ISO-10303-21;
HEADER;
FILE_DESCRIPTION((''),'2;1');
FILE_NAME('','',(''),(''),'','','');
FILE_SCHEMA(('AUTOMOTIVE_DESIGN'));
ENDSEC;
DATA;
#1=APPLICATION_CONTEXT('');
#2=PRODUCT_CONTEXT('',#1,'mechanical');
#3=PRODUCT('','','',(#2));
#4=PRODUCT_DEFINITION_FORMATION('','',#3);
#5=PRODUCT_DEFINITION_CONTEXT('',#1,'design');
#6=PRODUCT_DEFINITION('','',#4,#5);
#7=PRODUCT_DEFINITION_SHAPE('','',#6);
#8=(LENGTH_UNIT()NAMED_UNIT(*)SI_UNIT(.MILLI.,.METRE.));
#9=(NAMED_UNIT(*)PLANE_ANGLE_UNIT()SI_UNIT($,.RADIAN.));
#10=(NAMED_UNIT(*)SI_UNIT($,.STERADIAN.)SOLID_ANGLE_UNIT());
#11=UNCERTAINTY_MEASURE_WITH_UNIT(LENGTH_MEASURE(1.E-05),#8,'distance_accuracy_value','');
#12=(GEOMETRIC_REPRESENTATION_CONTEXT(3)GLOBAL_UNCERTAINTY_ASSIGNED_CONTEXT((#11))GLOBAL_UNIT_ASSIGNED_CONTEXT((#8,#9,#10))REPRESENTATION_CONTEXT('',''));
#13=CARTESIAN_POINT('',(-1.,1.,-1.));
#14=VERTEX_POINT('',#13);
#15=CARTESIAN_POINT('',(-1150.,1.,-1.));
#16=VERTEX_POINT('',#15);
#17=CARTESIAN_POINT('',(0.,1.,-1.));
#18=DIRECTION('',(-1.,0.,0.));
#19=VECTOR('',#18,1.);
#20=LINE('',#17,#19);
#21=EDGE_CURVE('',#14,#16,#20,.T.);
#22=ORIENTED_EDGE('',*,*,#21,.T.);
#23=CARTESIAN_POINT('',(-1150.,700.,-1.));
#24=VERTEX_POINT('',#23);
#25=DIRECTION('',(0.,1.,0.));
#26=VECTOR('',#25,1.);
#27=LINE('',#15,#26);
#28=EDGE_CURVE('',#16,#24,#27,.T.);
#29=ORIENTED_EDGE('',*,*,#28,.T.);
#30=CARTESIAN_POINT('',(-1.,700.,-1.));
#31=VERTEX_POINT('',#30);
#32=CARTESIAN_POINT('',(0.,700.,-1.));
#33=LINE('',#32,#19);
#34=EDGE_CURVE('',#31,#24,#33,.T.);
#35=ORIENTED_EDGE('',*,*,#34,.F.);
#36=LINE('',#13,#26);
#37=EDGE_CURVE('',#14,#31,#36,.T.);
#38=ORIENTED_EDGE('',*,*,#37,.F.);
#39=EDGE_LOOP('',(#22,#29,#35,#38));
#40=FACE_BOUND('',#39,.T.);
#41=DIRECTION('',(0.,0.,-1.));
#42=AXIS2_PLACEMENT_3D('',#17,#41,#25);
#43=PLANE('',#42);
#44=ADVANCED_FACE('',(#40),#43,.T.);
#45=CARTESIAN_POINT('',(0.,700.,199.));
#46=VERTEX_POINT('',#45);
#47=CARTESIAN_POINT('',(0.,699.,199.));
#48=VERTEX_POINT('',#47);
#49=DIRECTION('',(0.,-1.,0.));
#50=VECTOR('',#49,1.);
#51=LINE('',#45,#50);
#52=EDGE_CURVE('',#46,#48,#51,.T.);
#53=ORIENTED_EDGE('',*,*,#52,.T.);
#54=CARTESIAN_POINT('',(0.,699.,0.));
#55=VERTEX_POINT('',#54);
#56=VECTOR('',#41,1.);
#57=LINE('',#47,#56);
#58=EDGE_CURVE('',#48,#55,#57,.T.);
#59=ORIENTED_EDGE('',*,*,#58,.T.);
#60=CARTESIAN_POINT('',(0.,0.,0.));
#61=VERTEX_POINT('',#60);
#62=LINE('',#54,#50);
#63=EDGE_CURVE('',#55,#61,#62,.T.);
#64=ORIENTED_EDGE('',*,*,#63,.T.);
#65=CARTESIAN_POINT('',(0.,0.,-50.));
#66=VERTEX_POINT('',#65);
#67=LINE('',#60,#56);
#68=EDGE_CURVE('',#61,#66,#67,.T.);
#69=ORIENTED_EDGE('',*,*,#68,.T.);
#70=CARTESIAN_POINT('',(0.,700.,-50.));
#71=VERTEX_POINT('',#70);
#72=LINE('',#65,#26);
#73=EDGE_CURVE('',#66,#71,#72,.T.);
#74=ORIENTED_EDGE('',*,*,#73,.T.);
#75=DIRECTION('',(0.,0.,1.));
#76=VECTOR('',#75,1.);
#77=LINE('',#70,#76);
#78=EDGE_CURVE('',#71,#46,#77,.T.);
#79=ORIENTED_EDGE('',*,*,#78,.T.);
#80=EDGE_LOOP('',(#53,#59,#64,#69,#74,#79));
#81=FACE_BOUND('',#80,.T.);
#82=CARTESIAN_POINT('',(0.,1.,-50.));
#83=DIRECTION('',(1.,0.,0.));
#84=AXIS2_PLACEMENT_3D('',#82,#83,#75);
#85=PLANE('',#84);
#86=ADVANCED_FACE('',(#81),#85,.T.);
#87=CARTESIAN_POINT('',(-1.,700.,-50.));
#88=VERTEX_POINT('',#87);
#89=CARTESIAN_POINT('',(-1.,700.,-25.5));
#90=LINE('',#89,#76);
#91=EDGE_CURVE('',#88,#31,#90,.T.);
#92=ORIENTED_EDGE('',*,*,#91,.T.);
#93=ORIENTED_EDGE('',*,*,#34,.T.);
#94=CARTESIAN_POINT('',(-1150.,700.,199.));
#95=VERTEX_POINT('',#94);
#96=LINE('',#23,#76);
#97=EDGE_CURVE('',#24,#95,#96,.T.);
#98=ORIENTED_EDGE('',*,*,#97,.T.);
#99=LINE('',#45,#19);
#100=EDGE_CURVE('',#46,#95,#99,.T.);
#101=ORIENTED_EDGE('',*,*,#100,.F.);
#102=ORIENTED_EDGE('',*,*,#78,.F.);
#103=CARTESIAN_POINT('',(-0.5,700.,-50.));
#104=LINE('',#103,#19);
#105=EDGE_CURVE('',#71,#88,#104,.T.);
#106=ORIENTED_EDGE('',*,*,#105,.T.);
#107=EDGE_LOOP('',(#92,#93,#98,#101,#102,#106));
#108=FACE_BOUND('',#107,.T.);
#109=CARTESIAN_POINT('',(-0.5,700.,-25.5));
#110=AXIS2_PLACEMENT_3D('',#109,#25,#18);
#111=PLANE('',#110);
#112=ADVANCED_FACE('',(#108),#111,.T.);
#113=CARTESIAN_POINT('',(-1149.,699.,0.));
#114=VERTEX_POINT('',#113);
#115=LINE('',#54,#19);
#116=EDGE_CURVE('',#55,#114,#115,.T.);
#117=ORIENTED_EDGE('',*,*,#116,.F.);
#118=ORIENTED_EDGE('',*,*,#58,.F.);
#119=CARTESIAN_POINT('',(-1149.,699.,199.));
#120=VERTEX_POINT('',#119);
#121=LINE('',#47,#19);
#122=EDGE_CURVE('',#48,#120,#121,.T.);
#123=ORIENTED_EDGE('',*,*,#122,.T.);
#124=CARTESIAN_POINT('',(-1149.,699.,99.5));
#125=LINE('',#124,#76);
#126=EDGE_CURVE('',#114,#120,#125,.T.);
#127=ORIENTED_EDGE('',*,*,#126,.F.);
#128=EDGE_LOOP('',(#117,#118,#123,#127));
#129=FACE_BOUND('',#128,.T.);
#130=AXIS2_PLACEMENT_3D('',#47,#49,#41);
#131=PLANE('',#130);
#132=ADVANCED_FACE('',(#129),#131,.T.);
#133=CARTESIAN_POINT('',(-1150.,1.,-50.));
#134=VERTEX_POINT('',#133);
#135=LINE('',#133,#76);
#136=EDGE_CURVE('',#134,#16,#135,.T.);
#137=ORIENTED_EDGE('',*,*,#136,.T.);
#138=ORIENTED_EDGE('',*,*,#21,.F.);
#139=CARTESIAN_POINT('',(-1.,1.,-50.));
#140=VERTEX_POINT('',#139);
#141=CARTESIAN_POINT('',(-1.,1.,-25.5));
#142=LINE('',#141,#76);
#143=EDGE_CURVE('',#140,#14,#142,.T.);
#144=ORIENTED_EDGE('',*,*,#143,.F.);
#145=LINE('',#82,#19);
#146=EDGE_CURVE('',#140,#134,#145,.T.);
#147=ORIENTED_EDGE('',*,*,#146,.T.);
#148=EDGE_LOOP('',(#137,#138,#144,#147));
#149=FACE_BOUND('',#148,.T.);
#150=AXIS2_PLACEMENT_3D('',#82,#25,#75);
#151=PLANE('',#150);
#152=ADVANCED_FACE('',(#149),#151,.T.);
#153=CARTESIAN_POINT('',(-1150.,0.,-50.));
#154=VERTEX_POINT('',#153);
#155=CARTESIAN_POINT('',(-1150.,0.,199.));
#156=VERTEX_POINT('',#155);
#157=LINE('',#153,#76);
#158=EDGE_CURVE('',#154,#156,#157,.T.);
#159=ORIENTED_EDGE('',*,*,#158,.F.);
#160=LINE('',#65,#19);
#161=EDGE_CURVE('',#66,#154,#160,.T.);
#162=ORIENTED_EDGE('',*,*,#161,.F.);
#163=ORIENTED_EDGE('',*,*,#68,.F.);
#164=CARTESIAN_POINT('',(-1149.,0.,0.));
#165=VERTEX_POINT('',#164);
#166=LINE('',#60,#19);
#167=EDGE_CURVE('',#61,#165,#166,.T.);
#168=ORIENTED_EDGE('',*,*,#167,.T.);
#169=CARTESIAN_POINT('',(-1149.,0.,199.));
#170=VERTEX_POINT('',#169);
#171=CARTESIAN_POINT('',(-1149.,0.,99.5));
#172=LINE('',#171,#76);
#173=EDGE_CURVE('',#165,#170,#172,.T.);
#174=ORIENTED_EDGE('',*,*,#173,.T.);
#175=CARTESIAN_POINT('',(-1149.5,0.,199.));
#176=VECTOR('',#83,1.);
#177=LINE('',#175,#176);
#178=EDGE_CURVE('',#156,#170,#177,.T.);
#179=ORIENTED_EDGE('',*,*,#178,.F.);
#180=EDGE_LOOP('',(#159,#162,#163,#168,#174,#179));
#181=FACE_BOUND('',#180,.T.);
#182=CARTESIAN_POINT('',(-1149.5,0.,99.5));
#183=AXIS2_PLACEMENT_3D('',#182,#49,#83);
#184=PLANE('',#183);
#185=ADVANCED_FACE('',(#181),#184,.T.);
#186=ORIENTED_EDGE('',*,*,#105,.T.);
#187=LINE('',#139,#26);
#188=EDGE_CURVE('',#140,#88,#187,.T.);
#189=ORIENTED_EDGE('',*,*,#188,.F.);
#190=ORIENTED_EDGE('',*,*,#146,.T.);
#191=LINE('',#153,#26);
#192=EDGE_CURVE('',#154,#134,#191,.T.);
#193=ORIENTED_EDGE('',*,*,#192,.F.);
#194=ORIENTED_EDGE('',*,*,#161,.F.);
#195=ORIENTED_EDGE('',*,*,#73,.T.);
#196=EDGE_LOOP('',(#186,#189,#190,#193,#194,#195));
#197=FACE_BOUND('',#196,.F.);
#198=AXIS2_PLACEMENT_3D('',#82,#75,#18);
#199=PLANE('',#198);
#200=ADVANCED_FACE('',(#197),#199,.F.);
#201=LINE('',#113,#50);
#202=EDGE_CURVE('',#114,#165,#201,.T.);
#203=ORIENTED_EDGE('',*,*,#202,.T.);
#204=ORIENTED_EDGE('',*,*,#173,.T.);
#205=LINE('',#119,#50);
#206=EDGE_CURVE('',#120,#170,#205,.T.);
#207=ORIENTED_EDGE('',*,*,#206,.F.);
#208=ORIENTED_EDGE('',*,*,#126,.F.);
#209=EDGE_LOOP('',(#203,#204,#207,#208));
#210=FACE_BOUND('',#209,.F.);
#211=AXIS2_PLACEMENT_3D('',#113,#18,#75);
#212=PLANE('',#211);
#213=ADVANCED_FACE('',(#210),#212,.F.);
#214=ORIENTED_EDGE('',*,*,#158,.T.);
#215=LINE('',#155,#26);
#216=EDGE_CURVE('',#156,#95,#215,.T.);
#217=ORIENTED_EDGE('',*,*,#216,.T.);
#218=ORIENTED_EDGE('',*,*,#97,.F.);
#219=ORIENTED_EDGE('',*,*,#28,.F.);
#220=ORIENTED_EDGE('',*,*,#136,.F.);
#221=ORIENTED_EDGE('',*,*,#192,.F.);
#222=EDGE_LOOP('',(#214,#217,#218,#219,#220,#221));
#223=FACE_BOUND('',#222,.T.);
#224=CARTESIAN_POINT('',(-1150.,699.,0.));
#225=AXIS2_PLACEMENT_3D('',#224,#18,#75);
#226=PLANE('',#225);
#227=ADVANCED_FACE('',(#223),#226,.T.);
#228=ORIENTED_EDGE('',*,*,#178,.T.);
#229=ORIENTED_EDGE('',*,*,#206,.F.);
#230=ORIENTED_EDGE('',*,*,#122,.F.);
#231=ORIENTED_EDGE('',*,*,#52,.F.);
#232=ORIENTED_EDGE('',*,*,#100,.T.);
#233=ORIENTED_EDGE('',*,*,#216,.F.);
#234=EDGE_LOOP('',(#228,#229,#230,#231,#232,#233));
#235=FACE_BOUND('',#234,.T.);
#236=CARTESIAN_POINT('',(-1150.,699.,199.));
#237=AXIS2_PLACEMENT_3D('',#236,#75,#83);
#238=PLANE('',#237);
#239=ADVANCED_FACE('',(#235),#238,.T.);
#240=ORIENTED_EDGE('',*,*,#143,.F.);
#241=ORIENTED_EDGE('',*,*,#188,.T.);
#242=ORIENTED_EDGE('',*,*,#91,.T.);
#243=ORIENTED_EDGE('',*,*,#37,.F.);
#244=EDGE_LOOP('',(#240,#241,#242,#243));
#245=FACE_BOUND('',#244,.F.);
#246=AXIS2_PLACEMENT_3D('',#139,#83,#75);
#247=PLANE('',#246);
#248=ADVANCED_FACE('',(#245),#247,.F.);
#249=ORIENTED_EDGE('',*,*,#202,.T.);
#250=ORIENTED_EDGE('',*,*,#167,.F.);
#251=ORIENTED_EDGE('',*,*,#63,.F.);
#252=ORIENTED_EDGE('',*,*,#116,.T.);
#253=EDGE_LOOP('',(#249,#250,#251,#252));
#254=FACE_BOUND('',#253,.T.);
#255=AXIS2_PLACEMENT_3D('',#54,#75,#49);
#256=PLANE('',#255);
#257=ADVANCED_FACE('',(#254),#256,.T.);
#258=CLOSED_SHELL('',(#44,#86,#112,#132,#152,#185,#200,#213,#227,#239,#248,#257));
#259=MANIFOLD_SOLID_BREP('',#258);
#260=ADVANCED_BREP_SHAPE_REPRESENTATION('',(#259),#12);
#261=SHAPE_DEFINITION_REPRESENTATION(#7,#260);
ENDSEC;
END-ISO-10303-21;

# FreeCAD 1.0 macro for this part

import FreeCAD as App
import Part
import Sketcher
Q = App.Units.Quantity

doc = App.newDocument("Part")
body = doc.addObject("PartDesign::Body", "Body")

# Sketch on YZ plane
sketch1 = body.newObject("Sketcher::SketchObject", "Sketch")
sketch1.AttachmentSupport = (doc.getObject("YZ_Plane"), [""])
sketch1.MapMode = "FlatFace"
sketch1.addGeometry(Part.LineSegment(App.Vector(699, 0, 0), App.Vector(0, 0, 0)), False)
sketch1.addGeometry(Part.LineSegment(App.Vector(0, 0, 0), App.Vector(0, -50, 0)), False)
sketch1.addGeometry(Part.LineSegment(App.Vector(0, -50, 0), App.Vector(1, -50, 0)), False)
sketch1.addGeometry(Part.LineSegment(App.Vector(1, -50, 0), App.Vector(1, -1, 0)), False)
sketch1.addGeometry(Part.LineSegment(App.Vector(1, -1, 0), App.Vector(700, -1, 0)), False)
sketch1.addGeometry(Part.LineSegment(App.Vector(700, -1, 0), App.Vector(700, 199, 0)), False)
sketch1.addGeometry(Part.LineSegment(App.Vector(700, 199, 0), App.Vector(699, 199, 0)), False)
sketch1.addGeometry(Part.LineSegment(App.Vector(699, 199, 0), App.Vector(699, 0, 0)), False)
sketch1.addConstraint(Sketcher.Constraint("Coincident", 0, 2, 1, 1))
sketch1.addConstraint(Sketcher.Constraint("Coincident", 1, 2, 2, 1))
sketch1.addConstraint(Sketcher.Constraint("Coincident", 2, 2, 3, 1))
sketch1.addConstraint(Sketcher.Constraint("Coincident", 3, 2, 4, 1))
sketch1.addConstraint(Sketcher.Constraint("Coincident", 4, 2, 5, 1))
sketch1.addConstraint(Sketcher.Constraint("Coincident", 5, 2, 6, 1))
sketch1.addConstraint(Sketcher.Constraint("Coincident", 6, 2, 7, 1))
sketch1.addConstraint(Sketcher.Constraint("Coincident", 7, 2, 0, 1))
sketch1.addConstraint(Sketcher.Constraint("Horizontal", 0))
sketch1.addConstraint(Sketcher.Constraint("Vertical", 1))
sketch1.addConstraint(Sketcher.Constraint("Horizontal", 2))
sketch1.addConstraint(Sketcher.Constraint("Vertical", 3))
sketch1.addConstraint(Sketcher.Constraint("Horizontal", 4))
sketch1.addConstraint(Sketcher.Constraint("Vertical", 5))
sketch1.addConstraint(Sketcher.Constraint("Horizontal", 6))
sketch1.addConstraint(Sketcher.Constraint("Vertical", 7))
sketch1.addConstraint(Sketcher.Constraint("Coincident", 0, 2, -1, 1))
sketch1.addConstraint(Sketcher.Constraint("Equal", 0, 4))
sketch1.addConstraint(Sketcher.Constraint("DistanceX", 0, 2, 0, 1, Q("699 mm")))
sketch1.addConstraint(Sketcher.Constraint("DistanceX", 2, 1, 2, 2, Q("1 mm")))
sketch1.addConstraint(Sketcher.Constraint("DistanceY", 1, 2, 1, 1, Q("50 mm")))
sketch1.addConstraint(Sketcher.Constraint("DistanceY", 3, 1, 3, 2, Q("49 mm")))
sketch1.addConstraint(Sketcher.Constraint("DistanceY", 5, 1, 5, 2, Q("200 mm")))
pad1 = body.newObject("PartDesign::Pad", "Pad")
pad1.Profile = sketch1
pad1.Length = 1150
pad1.Reversed = True

# Sketch on XZ plane
sketch2 = body.newObject("Sketcher::SketchObject", "Sketch001")
sketch2.AttachmentSupport = (doc.getObject("XZ_Plane"), [""])
sketch2.MapMode = "FlatFace"
sketch2.AttachmentOffset = App.Placement(App.Vector(0, 0, -1), App.Rotation())
sketch2.addGeometry(Part.LineSegment(App.Vector(0, -1, 0), App.Vector(0, -50, 0)), False)
sketch2.addGeometry(Part.LineSegment(App.Vector(0, -50, 0), App.Vector(-1, -50, 0)), False)
sketch2.addGeometry(Part.LineSegment(App.Vector(-1, -50, 0), App.Vector(-1, -1, 0)), False)
sketch2.addGeometry(Part.LineSegment(App.Vector(-1, -1, 0), App.Vector(0, -1, 0)), False)
sketch2.addConstraint(Sketcher.Constraint("Coincident", 0, 2, 1, 1))
sketch2.addConstraint(Sketcher.Constraint("Coincident", 1, 2, 2, 1))
sketch2.addConstraint(Sketcher.Constraint("Coincident", 2, 2, 3, 1))
sketch2.addConstraint(Sketcher.Constraint("Coincident", 3, 2, 0, 1))
sketch2.addConstraint(Sketcher.Constraint("Vertical", 0))
sketch2.addConstraint(Sketcher.Constraint("Horizontal", 1))
sketch2.addConstraint(Sketcher.Constraint("Vertical", 2))
sketch2.addConstraint(Sketcher.Constraint("Horizontal", 3))
sketch2.addConstraint(Sketcher.Constraint("PointOnObject", 0, 2, -2))
sketch2.addConstraint(Sketcher.Constraint("DistanceX", 1, 2, 1, 1, Q("1 mm")))
sketch2.addConstraint(Sketcher.Constraint("DistanceY", 0, 2, 0, 1, Q("49 mm")))
sketch2.addConstraint(Sketcher.Constraint("DistanceY", 0, 2, -1, 1, Q("50 mm")))
pad2 = body.newObject("PartDesign::Pad", "Pad001")
pad2.Profile = sketch2
pad2.Length = 699
pad2.Reversed = True

# Sketch on XZ plane
sketch3 = body.newObject("Sketcher::SketchObject", "Sketch002")
sketch3.AttachmentSupport = (doc.getObject("XZ_Plane"), [""])
sketch3.MapMode = "FlatFace"
sketch3.AttachmentOffset = App.Placement(App.Vector(0, 0, -699), App.Rotation())
sketch3.addGeometry(Part.LineSegment(App.Vector(-1150, 199, 0), App.Vector(-1150, 0, 0)), False)
sketch3.addGeometry(Part.LineSegment(App.Vector(-1150, 0, 0), App.Vector(-1149, 0, 0)), False)
sketch3.addGeometry(Part.LineSegment(App.Vector(-1149, 0, 0), App.Vector(-1149, 199, 0)), False)
sketch3.addGeometry(Part.LineSegment(App.Vector(-1149, 199, 0), App.Vector(-1150, 199, 0)), False)
sketch3.addConstraint(Sketcher.Constraint("Coincident", 0, 2, 1, 1))
sketch3.addConstraint(Sketcher.Constraint("Coincident", 1, 2, 2, 1))
sketch3.addConstraint(Sketcher.Constraint("Coincident", 2, 2, 3, 1))
sketch3.addConstraint(Sketcher.Constraint("Coincident", 3, 2, 0, 1))
sketch3.addConstraint(Sketcher.Constraint("Vertical", 0))
sketch3.addConstraint(Sketcher.Constraint("Horizontal", 1))
sketch3.addConstraint(Sketcher.Constraint("Vertical", 2))
sketch3.addConstraint(Sketcher.Constraint("Horizontal", 3))
sketch3.addConstraint(Sketcher.Constraint("PointOnObject", 0, 2, -1))
sketch3.addConstraint(Sketcher.Constraint("DistanceX", 1, 1, 1, 2, Q("1 mm")))
sketch3.addConstraint(Sketcher.Constraint("DistanceY", 0, 2, 0, 1, Q("199 mm")))
sketch3.addConstraint(Sketcher.Constraint("DistanceX", 0, 2, -1, 1, Q("1150 mm")))
pad3 = body.newObject("PartDesign::Pad", "Pad002")
pad3.Profile = sketch3
pad3.Length = 699

doc.recompute()
